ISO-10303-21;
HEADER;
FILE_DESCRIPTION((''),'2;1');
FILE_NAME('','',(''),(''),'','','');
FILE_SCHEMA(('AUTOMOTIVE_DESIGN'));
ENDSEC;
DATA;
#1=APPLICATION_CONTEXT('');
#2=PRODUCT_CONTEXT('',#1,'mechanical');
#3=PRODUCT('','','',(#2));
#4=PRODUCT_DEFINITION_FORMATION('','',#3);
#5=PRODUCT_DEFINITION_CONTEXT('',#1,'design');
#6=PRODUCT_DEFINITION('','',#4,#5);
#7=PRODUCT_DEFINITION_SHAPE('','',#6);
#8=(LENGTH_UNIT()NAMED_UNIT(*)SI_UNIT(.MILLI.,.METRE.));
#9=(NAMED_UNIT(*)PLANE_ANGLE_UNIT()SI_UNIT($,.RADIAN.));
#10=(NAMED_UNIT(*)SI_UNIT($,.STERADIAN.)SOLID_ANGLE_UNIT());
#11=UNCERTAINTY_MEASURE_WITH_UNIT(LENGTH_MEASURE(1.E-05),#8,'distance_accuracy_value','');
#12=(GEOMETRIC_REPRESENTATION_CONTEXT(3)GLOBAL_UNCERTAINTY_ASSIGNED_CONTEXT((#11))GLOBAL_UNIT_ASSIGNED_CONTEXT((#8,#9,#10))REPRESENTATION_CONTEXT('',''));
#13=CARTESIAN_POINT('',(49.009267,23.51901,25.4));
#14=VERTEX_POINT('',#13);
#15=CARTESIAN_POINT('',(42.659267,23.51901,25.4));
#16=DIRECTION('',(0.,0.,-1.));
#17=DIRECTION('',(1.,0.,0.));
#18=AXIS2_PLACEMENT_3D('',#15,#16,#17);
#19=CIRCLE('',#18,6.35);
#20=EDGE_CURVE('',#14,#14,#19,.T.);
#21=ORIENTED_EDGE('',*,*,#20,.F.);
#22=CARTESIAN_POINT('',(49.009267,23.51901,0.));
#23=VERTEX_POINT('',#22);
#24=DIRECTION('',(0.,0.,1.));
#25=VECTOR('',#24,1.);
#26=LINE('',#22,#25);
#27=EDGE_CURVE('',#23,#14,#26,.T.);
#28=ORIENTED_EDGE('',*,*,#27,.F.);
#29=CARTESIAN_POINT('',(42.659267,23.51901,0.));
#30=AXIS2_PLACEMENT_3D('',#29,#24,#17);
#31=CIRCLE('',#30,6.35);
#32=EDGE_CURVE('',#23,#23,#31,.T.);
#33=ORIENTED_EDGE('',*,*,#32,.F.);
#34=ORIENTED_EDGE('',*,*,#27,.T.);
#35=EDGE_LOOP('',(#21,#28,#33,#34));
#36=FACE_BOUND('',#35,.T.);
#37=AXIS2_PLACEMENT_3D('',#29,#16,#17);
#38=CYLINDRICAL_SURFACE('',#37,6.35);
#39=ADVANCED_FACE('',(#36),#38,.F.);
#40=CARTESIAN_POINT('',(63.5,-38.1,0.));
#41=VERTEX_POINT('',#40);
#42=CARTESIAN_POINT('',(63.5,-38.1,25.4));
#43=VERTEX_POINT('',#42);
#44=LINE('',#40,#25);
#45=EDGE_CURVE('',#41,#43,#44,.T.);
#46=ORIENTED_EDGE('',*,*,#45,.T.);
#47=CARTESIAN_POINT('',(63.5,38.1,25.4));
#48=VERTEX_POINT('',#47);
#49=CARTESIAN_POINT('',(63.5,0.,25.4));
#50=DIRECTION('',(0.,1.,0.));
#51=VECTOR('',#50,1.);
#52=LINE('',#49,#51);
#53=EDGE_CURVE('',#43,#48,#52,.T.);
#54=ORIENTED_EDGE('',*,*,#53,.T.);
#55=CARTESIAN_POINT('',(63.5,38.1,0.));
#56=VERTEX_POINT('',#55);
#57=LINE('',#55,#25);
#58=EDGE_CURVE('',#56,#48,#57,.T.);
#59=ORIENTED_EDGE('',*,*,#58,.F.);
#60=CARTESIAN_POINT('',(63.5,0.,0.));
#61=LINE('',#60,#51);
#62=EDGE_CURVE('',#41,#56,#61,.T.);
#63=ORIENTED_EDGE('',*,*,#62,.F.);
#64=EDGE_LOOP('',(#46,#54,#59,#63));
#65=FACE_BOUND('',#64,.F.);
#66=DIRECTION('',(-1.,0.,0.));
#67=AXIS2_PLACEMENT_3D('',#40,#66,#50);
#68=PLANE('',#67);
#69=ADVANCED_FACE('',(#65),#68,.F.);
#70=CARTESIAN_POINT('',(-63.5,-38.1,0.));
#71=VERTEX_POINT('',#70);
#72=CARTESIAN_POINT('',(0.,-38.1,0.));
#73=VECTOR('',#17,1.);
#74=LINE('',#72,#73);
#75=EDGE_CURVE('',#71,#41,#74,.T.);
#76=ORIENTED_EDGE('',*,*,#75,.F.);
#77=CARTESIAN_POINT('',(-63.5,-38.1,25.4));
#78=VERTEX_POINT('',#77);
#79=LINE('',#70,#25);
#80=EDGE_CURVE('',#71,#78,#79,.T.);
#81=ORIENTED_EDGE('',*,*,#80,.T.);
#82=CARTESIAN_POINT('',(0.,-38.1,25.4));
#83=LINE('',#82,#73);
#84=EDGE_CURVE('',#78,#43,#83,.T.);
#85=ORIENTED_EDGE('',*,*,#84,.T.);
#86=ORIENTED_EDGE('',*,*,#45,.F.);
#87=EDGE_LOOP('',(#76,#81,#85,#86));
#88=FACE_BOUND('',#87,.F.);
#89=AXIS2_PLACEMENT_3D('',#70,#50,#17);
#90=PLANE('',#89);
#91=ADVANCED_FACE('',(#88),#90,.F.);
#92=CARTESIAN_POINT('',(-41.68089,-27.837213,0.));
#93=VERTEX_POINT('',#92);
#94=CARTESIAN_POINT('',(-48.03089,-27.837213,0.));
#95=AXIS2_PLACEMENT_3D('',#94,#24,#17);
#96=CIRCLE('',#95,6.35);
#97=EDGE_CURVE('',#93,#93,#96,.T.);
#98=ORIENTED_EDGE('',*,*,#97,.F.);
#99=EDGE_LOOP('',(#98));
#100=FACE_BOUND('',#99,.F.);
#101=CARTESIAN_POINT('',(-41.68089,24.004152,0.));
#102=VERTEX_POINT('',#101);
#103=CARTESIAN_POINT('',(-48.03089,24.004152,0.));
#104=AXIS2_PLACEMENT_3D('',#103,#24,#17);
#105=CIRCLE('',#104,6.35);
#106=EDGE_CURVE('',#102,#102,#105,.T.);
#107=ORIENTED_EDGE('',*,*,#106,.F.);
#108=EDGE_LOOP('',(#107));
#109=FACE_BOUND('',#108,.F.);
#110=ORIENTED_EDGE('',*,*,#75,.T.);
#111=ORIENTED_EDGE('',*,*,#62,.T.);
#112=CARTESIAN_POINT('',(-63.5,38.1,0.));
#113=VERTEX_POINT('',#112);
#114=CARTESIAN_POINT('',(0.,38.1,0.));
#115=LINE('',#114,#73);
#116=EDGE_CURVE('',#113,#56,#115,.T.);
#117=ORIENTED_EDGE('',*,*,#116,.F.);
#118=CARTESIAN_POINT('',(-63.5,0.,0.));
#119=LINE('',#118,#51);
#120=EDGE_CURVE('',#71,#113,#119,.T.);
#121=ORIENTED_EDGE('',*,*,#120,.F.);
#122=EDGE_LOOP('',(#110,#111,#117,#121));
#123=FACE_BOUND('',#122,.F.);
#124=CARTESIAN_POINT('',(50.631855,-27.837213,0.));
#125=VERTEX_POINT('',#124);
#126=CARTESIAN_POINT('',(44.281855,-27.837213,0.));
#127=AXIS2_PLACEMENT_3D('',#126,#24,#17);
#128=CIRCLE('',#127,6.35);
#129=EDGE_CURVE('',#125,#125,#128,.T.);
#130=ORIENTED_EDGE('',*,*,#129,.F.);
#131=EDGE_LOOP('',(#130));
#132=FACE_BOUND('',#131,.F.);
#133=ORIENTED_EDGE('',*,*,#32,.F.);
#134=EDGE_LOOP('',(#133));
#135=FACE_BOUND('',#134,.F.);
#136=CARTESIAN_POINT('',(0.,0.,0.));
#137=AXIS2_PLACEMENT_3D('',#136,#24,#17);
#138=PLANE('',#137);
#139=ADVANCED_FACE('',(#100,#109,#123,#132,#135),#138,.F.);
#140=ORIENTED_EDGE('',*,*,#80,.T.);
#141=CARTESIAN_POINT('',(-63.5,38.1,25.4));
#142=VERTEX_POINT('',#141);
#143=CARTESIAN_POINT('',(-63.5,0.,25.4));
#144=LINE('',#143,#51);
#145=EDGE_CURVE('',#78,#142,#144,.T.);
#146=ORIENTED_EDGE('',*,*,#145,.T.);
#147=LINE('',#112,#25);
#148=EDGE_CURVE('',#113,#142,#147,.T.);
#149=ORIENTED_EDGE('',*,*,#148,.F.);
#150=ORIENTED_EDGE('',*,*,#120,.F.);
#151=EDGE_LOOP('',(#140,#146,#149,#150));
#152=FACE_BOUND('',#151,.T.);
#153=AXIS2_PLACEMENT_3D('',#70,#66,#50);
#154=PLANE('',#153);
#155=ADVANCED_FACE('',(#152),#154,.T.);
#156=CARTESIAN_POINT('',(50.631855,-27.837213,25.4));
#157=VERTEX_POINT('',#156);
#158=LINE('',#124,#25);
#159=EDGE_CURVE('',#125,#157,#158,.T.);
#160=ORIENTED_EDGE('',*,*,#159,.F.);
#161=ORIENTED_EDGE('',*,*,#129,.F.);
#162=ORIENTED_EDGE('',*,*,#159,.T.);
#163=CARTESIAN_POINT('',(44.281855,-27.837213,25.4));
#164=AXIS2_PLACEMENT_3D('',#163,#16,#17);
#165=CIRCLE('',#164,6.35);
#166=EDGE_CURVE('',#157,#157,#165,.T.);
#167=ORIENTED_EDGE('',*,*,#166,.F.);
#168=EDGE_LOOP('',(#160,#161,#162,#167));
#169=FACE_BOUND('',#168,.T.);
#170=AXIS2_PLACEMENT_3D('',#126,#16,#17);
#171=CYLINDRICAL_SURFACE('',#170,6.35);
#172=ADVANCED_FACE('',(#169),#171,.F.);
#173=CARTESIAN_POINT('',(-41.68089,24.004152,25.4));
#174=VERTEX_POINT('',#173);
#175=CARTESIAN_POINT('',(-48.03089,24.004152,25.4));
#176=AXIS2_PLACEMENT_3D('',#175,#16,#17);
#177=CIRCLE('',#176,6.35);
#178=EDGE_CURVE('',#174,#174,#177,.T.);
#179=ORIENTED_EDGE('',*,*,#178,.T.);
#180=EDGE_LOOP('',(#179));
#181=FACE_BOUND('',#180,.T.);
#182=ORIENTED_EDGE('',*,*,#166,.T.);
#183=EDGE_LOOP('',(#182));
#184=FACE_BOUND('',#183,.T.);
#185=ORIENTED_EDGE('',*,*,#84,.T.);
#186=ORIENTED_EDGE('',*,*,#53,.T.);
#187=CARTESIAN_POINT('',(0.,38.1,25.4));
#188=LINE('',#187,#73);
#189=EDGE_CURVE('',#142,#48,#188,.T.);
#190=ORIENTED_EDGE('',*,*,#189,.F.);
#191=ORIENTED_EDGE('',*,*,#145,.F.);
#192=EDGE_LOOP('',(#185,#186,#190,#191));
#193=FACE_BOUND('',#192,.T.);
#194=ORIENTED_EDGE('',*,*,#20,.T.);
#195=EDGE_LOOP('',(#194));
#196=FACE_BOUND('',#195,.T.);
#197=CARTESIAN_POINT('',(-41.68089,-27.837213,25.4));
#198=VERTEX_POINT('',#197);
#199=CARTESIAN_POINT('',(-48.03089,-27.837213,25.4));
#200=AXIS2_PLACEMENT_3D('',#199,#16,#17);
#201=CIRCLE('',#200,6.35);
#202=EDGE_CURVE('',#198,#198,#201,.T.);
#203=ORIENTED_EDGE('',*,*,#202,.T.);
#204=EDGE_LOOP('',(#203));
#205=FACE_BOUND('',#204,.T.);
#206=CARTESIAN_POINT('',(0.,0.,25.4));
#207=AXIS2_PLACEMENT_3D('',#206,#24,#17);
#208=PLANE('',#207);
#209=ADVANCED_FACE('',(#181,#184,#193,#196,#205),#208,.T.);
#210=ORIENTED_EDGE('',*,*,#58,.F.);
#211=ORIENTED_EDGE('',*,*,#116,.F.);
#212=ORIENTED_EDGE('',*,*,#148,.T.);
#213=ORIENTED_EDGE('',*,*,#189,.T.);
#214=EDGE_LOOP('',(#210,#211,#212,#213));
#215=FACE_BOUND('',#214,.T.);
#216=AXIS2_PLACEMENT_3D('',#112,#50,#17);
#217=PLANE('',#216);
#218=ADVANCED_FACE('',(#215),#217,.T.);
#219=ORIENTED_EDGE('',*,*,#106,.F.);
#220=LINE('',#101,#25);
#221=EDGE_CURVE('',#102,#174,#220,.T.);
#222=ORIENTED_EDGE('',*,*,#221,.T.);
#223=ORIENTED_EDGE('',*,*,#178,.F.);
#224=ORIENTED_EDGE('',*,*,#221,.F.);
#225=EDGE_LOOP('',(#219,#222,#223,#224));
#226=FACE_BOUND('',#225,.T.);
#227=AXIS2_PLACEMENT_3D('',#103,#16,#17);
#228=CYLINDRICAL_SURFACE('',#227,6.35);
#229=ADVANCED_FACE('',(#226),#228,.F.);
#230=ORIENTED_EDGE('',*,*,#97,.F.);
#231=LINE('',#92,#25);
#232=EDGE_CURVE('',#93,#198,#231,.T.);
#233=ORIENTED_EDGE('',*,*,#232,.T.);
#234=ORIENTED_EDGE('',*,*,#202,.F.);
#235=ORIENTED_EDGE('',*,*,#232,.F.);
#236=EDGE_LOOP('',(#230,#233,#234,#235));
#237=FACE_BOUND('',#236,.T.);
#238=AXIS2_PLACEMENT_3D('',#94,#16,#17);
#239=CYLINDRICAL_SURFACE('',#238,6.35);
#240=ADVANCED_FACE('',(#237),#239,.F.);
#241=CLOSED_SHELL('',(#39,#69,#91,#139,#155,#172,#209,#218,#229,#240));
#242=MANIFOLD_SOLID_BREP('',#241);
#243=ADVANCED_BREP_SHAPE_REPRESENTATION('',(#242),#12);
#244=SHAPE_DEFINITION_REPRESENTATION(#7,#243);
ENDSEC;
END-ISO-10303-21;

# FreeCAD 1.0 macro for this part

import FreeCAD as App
import Part
import Sketcher
Q = App.Units.Quantity

doc = App.newDocument("Part")
body = doc.addObject("PartDesign::Body", "Body")

sketch1 = body.newObject("Sketcher::SketchObject", "Sketch")
sketch1.AttachmentSupport = (doc.getObject("XY_Plane"), [""])
sketch1.MapMode = "FlatFace"
sketch1.addGeometry(Part.LineSegment(App.Vector(-64, 38, 0), App.Vector(-64, -38, 0)), False)
sketch1.addGeometry(Part.LineSegment(App.Vector(-64, -38, 0), App.Vector(64, -38, 0)), False)
sketch1.addGeometry(Part.LineSegment(App.Vector(64, -38, 0), App.Vector(64, 38, 0)), False)
sketch1.addGeometry(Part.LineSegment(App.Vector(64, 38, 0), App.Vector(-64, 38, 0)), False)
sketch1.addConstraint(Sketcher.Constraint("Coincident", 0, 2, 1, 1))
sketch1.addConstraint(Sketcher.Constraint("Coincident", 1, 2, 2, 1))
sketch1.addConstraint(Sketcher.Constraint("Coincident", 2, 2, 3, 1))
sketch1.addConstraint(Sketcher.Constraint("Coincident", 3, 2, 0, 1))
sketch1.addConstraint(Sketcher.Constraint("Vertical", 0))
sketch1.addConstraint(Sketcher.Constraint("Horizontal", 1))
sketch1.addConstraint(Sketcher.Constraint("Vertical", 2))
sketch1.addConstraint(Sketcher.Constraint("Horizontal", 3))
sketch1.addConstraint(Sketcher.Constraint("Symmetric", 0, 2, 2, 2, -1, 1))
sketch1.addConstraint(Sketcher.Constraint("DistanceX", 1, 1, 1, 2, Q("5 in")))
sketch1.addConstraint(Sketcher.Constraint("DistanceY", 0, 2, 0, 1, Q("3 in")))
pad1 = body.newObject("PartDesign::Pad", "Pad")
pad1.Profile = sketch1
pad1.Length = Q("1 in")

sketch2 = body.newObject("Sketcher::SketchObject", "Sketch001")
sketch2.AttachmentSupport = (doc.getObject("XY_Plane"), [""])
sketch2.MapMode = "FlatFace"
sketch2.addGeometry(Part.Circle(App.Vector(-48, -28, 0), App.Vector(0, 0, 1), 6), False)
sketch2.addGeometry(Part.Circle(App.Vector(44, -28, 0), App.Vector(0, 0, 1), 6), False)
sketch2.addGeometry(Part.Circle(App.Vector(43, 24, 0), App.Vector(0, 0, 1), 6), False)
sketch2.addGeometry(Part.Circle(App.Vector(-48, 24, 0), App.Vector(0, 0, 1), 6), False)
sketch2.addConstraint(Sketcher.Constraint("Equal", 0, 1))
sketch2.addConstraint(Sketcher.Constraint("Equal", 1, 2))
sketch2.addConstraint(Sketcher.Constraint("Equal", 2, 3))
sketch2.addConstraint(Sketcher.Constraint("Horizontal", 0, 3, 1, 3))
sketch2.addConstraint(Sketcher.Constraint("Vertical", 0, 3, 3, 3))
sketch2.addConstraint(Sketcher.Constraint("Diameter", 0, Q("0.5 in")))
sketch2.addConstraint(Sketcher.Constraint("DistanceY", 2, 3, 3, 3, Q("0.0191001 in")))
sketch2.addConstraint(Sketcher.Constraint("DistanceX", 0, 3, -1, 1, Q("48.03089 mm")))
sketch2.addConstraint(Sketcher.Constraint("DistanceY", -1, 1, 2, 3, Q("23.51901 mm")))
sketch2.addConstraint(Sketcher.Constraint("DistanceX", 2, 3, 1, 3, Q("1.622588 mm")))
sketch2.addConstraint(Sketcher.Constraint("DistanceY", 0, 3, -1, 1, Q("27.837213 mm")))
sketch2.addConstraint(Sketcher.Constraint("DistanceX", -1, 1, 1, 3, Q("44.281855 mm")))
pocket1 = body.newObject("PartDesign::Pocket", "Pocket")
pocket1.Profile = sketch2
pocket1.Type = "ThroughAll"
pocket1.Reversed = True

doc.recompute()
